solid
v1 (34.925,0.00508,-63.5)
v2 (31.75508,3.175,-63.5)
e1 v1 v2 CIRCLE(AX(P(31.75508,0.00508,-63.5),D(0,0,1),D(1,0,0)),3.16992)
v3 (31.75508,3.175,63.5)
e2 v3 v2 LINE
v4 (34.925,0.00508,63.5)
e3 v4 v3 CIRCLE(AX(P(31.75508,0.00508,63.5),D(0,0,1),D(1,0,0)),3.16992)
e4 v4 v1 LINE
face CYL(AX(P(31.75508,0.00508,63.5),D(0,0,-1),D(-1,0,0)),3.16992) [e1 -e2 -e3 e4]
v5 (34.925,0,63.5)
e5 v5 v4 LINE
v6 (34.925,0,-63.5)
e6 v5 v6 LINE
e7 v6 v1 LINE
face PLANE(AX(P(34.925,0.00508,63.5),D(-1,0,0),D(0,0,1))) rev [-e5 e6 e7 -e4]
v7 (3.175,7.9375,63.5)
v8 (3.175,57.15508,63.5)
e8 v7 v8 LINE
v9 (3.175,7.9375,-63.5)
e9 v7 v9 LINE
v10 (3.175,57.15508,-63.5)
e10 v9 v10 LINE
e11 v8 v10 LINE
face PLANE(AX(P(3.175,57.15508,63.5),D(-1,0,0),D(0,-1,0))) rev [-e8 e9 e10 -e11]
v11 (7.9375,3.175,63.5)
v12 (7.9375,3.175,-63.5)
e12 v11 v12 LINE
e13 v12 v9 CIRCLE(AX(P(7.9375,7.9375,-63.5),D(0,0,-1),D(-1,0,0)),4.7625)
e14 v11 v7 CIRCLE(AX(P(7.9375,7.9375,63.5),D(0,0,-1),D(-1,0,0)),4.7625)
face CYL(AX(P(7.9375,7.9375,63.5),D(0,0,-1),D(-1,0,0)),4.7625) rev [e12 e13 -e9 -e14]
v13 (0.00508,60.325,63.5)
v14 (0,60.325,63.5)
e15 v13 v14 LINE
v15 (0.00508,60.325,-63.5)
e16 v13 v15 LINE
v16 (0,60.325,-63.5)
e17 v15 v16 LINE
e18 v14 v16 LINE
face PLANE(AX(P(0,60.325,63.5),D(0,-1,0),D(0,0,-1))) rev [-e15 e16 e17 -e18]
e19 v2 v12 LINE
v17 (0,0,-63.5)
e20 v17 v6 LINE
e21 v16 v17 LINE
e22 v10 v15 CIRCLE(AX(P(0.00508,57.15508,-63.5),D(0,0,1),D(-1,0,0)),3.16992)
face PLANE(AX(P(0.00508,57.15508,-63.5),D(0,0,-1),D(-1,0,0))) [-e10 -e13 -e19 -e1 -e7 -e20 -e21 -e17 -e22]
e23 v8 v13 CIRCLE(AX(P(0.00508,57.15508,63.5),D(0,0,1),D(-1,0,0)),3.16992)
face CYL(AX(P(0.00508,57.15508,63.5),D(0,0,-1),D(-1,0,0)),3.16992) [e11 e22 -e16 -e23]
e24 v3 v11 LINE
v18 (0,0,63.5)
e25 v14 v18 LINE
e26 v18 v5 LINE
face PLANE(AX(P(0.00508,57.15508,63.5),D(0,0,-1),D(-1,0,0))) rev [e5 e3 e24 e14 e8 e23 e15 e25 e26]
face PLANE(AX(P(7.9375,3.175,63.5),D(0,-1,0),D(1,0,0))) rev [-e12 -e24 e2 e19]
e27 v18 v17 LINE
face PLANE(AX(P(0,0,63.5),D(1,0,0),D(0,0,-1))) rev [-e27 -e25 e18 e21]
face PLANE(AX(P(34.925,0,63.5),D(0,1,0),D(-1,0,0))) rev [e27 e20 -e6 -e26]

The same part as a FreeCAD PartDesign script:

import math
import FreeCAD as App
import Part
import Sketcher
from FreeCAD import Vector
Q = App.Units.Quantity

doc = App.newDocument("Part")
body = doc.addObject("PartDesign::Body", "Body")

# Sketch on XY plane
sketch1 = body.newObject("Sketcher::SketchObject", "Sketch")
sketch1.AttachmentSupport = (doc.getObject("XY_Plane"), [""])
sketch1.MapMode = "FlatFace"
sketch1.addGeometry(Part.LineSegment(Vector(0, 60.325, 0), Vector(0, 0, 0)), False)
sketch1.addGeometry(Part.LineSegment(Vector(0, 0, 0), Vector(34.925, 0, 0)), False)
sketch1.addGeometry(Part.LineSegment(Vector(34.925, 0, 0), Vector(34.925, 0.005, 0)), False)
sketch1.addGeometry(Part.ArcOfCircle(Part.Circle(Vector(31.755, 0.005, 0), Vector(0, 0, 1), 3.17), math.radians(0), math.radians(90)), False)
sketch1.addGeometry(Part.LineSegment(Vector(31.755, 3.175, 0), Vector(7.938, 3.175, 0)), False)
sketch1.addGeometry(Part.ArcOfCircle(Part.Circle(Vector(7.938, 7.938, 0), Vector(0, 0, 1), 4.763), math.radians(-180), math.radians(-90)), False)
sketch1.addGeometry(Part.LineSegment(Vector(3.175, 7.938, 0), Vector(3.175, 57.155, 0)), False)
sketch1.addGeometry(Part.ArcOfCircle(Part.Circle(Vector(0.005, 57.155, 0), Vector(0, 0, 1), 3.17), math.radians(0), math.radians(90)), False)
sketch1.addGeometry(Part.LineSegment(Vector(0.005, 60.325, 0), Vector(0, 60.325, 0)), False)
sketch1.addConstraint(Sketcher.Constraint("Coincident", 0, 2, 1, 1))
sketch1.addConstraint(Sketcher.Constraint("Coincident", 1, 2, 2, 1))
sketch1.addConstraint(Sketcher.Constraint("Tangent", 2, 2, 3, 1))
sketch1.addConstraint(Sketcher.Constraint("Tangent", 3, 2, 4, 1))
sketch1.addConstraint(Sketcher.Constraint("Tangent", 4, 2, 5, 2))
sketch1.addConstraint(Sketcher.Constraint("Tangent", 5, 1, 6, 1))
sketch1.addConstraint(Sketcher.Constraint("Tangent", 6, 2, 7, 1))
sketch1.addConstraint(Sketcher.Constraint("Tangent", 7, 2, 8, 1))
sketch1.addConstraint(Sketcher.Constraint("Coincident", 8, 2, 0, 1))
sketch1.addConstraint(Sketcher.Constraint("Vertical", 0))
sketch1.addConstraint(Sketcher.Constraint("Horizontal", 1))
sketch1.addConstraint(Sketcher.Constraint("Horizontal", 4))
sketch1.addConstraint(Sketcher.Constraint("Vertical", 6))
sketch1.addConstraint(Sketcher.Constraint("Coincident", 0, 2, -1, 1))
sketch1.addConstraint(Sketcher.Constraint("Equal", 3, 7))
sketch1.addConstraint(Sketcher.Constraint("Horizontal", 3, 3, 2, 2))
sketch1.addConstraint(Sketcher.Constraint("Equal", 8, 2))
sketch1.addConstraint(Sketcher.Constraint("Radius", 5, Q("0.1875 in")))
sketch1.addConstraint(Sketcher.Constraint("Radius", 3, Q("0.1248 in")))
sketch1.addConstraint(Sketcher.Constraint("DistanceX", 1, 1, 1, 2, Q("1.375 in")))
sketch1.addConstraint(Sketcher.Constraint("DistanceY", 0, 2, 0, 1, Q("2.375 in")))
sketch1.addConstraint(Sketcher.Constraint("DistanceX", 7, 3, 3, 3, Q("1.25 in")))
sketch1.addConstraint(Sketcher.Constraint("DistanceY", 3, 3, 7, 3, Q("2.25 in")))
pad1 = body.newObject("PartDesign::Pad", "Pad")
pad1.Profile = sketch1
pad1.Length = Q("5 in")
pad1.Midplane = True

doc.recompute()
